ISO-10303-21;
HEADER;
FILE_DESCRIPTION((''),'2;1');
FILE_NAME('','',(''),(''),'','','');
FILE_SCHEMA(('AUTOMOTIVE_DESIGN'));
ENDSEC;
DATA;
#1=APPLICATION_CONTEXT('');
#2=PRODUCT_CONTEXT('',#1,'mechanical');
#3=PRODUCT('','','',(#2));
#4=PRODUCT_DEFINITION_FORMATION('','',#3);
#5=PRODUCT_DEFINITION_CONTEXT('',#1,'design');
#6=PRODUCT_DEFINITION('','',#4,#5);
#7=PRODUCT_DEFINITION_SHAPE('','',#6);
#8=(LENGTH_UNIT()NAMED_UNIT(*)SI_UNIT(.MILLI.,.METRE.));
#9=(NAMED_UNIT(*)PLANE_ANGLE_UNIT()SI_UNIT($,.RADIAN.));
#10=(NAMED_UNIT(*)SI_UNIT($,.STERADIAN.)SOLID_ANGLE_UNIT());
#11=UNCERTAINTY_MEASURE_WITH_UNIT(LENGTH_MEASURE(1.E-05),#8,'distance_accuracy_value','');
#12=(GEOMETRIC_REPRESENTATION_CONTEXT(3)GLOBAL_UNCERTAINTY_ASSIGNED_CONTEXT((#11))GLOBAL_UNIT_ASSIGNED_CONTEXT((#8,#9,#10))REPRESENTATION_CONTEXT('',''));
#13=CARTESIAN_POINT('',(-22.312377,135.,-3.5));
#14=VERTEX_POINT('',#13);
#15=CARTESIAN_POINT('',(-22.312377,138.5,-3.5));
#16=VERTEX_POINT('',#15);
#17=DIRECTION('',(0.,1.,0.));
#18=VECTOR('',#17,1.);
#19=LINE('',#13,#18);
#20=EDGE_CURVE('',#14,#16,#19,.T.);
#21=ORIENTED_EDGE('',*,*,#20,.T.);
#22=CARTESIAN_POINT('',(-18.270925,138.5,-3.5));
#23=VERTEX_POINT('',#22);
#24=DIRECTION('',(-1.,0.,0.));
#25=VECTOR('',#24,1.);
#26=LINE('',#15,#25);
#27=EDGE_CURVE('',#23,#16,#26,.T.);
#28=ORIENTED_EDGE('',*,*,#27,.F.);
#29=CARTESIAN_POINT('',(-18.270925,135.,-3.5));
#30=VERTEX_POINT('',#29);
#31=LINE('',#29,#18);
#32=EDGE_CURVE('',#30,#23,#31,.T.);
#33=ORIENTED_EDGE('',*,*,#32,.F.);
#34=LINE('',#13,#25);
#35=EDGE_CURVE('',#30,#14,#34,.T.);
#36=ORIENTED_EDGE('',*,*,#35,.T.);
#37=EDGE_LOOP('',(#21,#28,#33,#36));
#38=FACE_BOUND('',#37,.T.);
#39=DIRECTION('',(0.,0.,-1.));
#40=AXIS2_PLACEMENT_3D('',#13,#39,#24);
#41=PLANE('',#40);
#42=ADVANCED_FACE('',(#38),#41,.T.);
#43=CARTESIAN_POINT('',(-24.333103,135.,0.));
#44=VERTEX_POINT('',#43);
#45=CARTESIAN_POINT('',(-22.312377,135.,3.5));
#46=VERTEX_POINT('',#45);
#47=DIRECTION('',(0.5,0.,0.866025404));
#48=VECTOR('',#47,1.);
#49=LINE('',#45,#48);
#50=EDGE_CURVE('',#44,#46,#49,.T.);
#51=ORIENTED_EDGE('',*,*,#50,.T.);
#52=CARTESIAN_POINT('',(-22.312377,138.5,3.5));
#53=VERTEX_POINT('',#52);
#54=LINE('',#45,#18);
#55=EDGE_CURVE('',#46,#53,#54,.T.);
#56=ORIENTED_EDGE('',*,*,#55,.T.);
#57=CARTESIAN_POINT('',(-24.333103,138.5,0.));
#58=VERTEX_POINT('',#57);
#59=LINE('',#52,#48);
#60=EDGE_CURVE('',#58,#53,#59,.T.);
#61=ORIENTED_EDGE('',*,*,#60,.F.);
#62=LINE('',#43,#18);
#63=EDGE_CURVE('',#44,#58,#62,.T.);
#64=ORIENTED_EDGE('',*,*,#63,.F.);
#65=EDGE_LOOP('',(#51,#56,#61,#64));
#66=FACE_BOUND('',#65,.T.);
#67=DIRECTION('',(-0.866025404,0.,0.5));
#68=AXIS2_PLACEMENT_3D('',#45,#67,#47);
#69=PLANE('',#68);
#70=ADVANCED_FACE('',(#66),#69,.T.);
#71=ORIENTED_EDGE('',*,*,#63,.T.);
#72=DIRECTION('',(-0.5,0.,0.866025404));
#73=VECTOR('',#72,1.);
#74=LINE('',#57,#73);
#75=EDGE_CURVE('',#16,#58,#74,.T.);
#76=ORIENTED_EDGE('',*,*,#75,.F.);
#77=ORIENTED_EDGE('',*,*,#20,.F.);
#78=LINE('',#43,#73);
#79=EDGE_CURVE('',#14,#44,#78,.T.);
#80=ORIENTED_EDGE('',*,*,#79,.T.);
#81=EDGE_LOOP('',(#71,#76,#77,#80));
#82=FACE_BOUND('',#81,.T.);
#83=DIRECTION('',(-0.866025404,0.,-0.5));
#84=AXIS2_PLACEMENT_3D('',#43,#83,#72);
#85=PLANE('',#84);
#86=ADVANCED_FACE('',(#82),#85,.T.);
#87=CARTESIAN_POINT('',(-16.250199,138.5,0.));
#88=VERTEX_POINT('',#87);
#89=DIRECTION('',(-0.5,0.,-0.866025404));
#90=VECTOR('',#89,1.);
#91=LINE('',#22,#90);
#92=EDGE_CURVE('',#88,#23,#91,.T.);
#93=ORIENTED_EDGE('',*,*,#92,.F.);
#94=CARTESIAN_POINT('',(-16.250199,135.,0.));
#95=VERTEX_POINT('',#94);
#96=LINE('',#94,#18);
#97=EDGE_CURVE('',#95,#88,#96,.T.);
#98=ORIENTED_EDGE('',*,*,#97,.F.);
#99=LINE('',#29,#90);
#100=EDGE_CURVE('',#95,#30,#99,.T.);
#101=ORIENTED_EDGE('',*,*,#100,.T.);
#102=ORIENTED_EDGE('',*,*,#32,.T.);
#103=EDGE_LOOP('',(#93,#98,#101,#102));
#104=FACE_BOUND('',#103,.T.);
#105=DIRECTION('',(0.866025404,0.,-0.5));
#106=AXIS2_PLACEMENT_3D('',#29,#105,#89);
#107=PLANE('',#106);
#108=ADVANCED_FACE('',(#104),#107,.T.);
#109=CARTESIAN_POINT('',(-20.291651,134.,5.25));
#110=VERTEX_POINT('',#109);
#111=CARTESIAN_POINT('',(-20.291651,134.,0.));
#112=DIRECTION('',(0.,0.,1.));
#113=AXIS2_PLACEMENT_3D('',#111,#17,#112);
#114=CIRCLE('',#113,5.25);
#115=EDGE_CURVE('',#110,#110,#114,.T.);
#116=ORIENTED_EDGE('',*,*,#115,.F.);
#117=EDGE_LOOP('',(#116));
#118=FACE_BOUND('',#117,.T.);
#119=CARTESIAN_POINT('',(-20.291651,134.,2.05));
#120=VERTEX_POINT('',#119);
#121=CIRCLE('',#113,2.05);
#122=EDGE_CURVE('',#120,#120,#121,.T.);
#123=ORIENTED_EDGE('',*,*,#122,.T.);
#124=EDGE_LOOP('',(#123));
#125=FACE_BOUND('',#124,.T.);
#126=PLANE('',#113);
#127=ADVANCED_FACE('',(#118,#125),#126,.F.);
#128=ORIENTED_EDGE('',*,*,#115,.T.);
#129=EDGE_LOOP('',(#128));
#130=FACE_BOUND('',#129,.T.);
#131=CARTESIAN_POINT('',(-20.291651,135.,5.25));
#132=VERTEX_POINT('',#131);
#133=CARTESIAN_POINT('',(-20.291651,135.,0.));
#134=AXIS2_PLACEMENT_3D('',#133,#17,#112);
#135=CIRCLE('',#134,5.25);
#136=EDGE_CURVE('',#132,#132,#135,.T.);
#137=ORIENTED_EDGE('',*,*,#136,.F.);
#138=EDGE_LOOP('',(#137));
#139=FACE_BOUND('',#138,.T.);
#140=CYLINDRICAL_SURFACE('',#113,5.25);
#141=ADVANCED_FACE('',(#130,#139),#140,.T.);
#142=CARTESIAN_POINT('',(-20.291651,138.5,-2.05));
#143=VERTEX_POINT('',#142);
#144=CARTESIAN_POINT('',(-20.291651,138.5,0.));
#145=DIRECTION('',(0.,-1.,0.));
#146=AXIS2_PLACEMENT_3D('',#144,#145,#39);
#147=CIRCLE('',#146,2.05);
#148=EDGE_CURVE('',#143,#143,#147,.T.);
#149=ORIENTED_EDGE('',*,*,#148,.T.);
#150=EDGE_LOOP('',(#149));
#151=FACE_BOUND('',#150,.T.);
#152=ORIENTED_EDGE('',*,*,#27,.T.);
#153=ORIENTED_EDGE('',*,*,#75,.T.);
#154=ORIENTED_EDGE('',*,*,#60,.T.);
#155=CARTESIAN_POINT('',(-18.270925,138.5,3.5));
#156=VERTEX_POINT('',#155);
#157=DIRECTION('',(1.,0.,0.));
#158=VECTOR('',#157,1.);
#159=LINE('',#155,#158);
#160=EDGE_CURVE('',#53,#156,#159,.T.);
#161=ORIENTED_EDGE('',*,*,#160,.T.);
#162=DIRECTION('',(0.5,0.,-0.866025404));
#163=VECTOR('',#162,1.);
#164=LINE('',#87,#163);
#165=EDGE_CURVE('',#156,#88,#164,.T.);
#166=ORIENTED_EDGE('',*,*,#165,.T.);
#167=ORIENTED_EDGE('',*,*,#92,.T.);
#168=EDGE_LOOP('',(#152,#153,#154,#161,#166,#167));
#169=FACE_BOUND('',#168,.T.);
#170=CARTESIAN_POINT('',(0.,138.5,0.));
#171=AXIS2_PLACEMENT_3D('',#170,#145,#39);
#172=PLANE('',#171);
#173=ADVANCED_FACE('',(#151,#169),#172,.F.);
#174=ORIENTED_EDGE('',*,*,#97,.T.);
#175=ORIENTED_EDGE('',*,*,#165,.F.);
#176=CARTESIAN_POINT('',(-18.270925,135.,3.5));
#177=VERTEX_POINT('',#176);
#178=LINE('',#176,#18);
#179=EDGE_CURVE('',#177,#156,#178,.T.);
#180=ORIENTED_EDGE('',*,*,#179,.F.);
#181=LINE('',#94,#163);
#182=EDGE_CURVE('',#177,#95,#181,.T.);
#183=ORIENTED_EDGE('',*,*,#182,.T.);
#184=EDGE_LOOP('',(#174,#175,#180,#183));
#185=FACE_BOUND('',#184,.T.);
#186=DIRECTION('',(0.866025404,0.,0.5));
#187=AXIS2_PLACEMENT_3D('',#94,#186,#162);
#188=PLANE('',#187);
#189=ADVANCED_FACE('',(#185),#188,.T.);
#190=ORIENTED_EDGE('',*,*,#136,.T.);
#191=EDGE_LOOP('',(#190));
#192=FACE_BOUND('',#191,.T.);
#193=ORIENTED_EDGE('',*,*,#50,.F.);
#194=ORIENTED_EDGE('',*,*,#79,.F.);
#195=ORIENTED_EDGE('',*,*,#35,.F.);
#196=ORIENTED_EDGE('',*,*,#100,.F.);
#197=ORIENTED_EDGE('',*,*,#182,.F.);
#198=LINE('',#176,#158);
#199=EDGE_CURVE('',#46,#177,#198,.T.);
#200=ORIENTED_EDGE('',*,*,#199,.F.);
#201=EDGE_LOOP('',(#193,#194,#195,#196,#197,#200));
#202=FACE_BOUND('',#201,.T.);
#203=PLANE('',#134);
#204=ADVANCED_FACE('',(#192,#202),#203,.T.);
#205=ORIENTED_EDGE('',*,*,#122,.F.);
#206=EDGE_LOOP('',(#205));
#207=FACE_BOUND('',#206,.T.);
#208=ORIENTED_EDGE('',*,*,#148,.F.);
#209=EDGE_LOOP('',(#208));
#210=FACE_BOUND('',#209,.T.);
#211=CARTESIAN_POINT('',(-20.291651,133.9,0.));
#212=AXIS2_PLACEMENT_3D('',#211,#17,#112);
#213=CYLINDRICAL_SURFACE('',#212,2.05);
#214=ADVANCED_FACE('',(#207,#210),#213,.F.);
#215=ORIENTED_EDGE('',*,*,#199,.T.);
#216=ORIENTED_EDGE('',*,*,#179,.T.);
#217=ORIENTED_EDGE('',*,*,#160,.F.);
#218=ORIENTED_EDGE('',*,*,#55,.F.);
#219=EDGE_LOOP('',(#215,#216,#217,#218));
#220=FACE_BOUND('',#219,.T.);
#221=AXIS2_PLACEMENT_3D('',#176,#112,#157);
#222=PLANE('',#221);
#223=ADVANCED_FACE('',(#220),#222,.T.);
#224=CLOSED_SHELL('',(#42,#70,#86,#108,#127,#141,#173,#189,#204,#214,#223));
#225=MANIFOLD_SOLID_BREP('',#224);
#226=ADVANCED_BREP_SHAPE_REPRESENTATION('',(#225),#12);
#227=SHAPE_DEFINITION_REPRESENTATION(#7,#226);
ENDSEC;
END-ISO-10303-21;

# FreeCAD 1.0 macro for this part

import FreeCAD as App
import Part
import Sketcher
Q = App.Units.Quantity


def add_polygon(sketch, points):
    """Adds a closed chain of lines whose ends are joined by coincident constraints."""
    first, n = sketch.GeometryCount, len(points)
    for a, b in zip(points, points[1:] + points[:1]):
        sketch.addGeometry(Part.LineSegment(App.Vector(*a, 0), App.Vector(*b, 0)), False)
    for i in range(n):
        sketch.addConstraint(Sketcher.Constraint("Coincident", first + i, 2, first + (i + 1) % n, 1))

doc = App.newDocument("Part")
body = doc.addObject("PartDesign::Body", "Body")

sketch1 = body.newObject("Sketcher::SketchObject", "Sketch")
sketch1.AttachmentSupport = (doc.getObject("XZ_Plane"), [""])
sketch1.MapMode = "FlatFace"
sketch1.AttachmentOffset = App.Placement(App.Vector(0, 0, -138.5), App.Rotation())
add_polygon(sketch1, [(-18.270925, 3.5), (-16.250199, 0), (-18.270925, -3.5), (-22.312377, -3.5), (-24.333103, 0), (-22.312377, 3.5)])
sketch1.addConstraint(Sketcher.Constraint("Horizontal", 2))
sketch1.addConstraint(Sketcher.Constraint("Horizontal", 5))
sketch1.addConstraint(Sketcher.Constraint("Symmetric", 2, 2, 4, 2, -1))
sketch1.addConstraint(Sketcher.Constraint("PointOnObject", 0, 2, -1))
sketch1.addConstraint(Sketcher.Constraint("PointOnObject", 3, 2, -1))
sketch1.addConstraint(Sketcher.Constraint("Parallel", 0, 3))
sketch1.addConstraint(Sketcher.Constraint("Parallel", 1, 4))
sketch1.addConstraint(Sketcher.Constraint("Angle", 0, Q("-60 deg")))
sketch1.addConstraint(Sketcher.Constraint("DistanceY", 2, 2, 4, 2, 7.0))
sketch1.addConstraint(Sketcher.Constraint("DistanceX", 2, 2, 2, 1, 4.041452))
sketch1.addConstraint(Sketcher.Constraint("DistanceX", 0, 2, -1, 1, 16.250199))
pad1 = body.newObject("PartDesign::Pad", "Pad")
pad1.Profile = sketch1
pad1.Length = 3.5

sketch2 = body.newObject("Sketcher::SketchObject", "Sketch001")
sketch2.AttachmentSupport = (doc.getObject("XZ_Plane"), [""])
sketch2.MapMode = "FlatFace"
sketch2.AttachmentOffset = App.Placement(App.Vector(0, 0, -135), App.Rotation())
sketch2.addGeometry(Part.Circle(App.Vector(-20.291651, 0, 0), App.Vector(0, 0, 1), 5.25), False)
sketch2.addConstraint(Sketcher.Constraint("PointOnObject", 0, 3, -1))
sketch2.addConstraint(Sketcher.Constraint("Diameter", 0, 10.5))
sketch2.addConstraint(Sketcher.Constraint("DistanceX", 0, 3, -1, 1, 20.291651))
pad2 = body.newObject("PartDesign::Pad", "Pad001")
pad2.Profile = sketch2
pad2.Length = 1

sketch3 = body.newObject("Sketcher::SketchObject", "Sketch002")
sketch3.AttachmentSupport = (doc.getObject("XZ_Plane"), [""])
sketch3.MapMode = "FlatFace"
sketch3.AttachmentOffset = App.Placement(App.Vector(0, 0, -138.6), App.Rotation())
sketch3.addGeometry(Part.Circle(App.Vector(-20.291651, 0, 0), App.Vector(0, 0, 1), 2.05), False)
sketch3.addConstraint(Sketcher.Constraint("PointOnObject", 0, 3, -1))
sketch3.addConstraint(Sketcher.Constraint("Diameter", 0, 4.1))
sketch3.addConstraint(Sketcher.Constraint("DistanceX", 0, 3, -1, 1, 20.291651))
pocket1 = body.newObject("PartDesign::Pocket", "Pocket")
pocket1.Profile = sketch3
pocket1.Length = 4.7
pocket1.Reversed = True

doc.recompute()
